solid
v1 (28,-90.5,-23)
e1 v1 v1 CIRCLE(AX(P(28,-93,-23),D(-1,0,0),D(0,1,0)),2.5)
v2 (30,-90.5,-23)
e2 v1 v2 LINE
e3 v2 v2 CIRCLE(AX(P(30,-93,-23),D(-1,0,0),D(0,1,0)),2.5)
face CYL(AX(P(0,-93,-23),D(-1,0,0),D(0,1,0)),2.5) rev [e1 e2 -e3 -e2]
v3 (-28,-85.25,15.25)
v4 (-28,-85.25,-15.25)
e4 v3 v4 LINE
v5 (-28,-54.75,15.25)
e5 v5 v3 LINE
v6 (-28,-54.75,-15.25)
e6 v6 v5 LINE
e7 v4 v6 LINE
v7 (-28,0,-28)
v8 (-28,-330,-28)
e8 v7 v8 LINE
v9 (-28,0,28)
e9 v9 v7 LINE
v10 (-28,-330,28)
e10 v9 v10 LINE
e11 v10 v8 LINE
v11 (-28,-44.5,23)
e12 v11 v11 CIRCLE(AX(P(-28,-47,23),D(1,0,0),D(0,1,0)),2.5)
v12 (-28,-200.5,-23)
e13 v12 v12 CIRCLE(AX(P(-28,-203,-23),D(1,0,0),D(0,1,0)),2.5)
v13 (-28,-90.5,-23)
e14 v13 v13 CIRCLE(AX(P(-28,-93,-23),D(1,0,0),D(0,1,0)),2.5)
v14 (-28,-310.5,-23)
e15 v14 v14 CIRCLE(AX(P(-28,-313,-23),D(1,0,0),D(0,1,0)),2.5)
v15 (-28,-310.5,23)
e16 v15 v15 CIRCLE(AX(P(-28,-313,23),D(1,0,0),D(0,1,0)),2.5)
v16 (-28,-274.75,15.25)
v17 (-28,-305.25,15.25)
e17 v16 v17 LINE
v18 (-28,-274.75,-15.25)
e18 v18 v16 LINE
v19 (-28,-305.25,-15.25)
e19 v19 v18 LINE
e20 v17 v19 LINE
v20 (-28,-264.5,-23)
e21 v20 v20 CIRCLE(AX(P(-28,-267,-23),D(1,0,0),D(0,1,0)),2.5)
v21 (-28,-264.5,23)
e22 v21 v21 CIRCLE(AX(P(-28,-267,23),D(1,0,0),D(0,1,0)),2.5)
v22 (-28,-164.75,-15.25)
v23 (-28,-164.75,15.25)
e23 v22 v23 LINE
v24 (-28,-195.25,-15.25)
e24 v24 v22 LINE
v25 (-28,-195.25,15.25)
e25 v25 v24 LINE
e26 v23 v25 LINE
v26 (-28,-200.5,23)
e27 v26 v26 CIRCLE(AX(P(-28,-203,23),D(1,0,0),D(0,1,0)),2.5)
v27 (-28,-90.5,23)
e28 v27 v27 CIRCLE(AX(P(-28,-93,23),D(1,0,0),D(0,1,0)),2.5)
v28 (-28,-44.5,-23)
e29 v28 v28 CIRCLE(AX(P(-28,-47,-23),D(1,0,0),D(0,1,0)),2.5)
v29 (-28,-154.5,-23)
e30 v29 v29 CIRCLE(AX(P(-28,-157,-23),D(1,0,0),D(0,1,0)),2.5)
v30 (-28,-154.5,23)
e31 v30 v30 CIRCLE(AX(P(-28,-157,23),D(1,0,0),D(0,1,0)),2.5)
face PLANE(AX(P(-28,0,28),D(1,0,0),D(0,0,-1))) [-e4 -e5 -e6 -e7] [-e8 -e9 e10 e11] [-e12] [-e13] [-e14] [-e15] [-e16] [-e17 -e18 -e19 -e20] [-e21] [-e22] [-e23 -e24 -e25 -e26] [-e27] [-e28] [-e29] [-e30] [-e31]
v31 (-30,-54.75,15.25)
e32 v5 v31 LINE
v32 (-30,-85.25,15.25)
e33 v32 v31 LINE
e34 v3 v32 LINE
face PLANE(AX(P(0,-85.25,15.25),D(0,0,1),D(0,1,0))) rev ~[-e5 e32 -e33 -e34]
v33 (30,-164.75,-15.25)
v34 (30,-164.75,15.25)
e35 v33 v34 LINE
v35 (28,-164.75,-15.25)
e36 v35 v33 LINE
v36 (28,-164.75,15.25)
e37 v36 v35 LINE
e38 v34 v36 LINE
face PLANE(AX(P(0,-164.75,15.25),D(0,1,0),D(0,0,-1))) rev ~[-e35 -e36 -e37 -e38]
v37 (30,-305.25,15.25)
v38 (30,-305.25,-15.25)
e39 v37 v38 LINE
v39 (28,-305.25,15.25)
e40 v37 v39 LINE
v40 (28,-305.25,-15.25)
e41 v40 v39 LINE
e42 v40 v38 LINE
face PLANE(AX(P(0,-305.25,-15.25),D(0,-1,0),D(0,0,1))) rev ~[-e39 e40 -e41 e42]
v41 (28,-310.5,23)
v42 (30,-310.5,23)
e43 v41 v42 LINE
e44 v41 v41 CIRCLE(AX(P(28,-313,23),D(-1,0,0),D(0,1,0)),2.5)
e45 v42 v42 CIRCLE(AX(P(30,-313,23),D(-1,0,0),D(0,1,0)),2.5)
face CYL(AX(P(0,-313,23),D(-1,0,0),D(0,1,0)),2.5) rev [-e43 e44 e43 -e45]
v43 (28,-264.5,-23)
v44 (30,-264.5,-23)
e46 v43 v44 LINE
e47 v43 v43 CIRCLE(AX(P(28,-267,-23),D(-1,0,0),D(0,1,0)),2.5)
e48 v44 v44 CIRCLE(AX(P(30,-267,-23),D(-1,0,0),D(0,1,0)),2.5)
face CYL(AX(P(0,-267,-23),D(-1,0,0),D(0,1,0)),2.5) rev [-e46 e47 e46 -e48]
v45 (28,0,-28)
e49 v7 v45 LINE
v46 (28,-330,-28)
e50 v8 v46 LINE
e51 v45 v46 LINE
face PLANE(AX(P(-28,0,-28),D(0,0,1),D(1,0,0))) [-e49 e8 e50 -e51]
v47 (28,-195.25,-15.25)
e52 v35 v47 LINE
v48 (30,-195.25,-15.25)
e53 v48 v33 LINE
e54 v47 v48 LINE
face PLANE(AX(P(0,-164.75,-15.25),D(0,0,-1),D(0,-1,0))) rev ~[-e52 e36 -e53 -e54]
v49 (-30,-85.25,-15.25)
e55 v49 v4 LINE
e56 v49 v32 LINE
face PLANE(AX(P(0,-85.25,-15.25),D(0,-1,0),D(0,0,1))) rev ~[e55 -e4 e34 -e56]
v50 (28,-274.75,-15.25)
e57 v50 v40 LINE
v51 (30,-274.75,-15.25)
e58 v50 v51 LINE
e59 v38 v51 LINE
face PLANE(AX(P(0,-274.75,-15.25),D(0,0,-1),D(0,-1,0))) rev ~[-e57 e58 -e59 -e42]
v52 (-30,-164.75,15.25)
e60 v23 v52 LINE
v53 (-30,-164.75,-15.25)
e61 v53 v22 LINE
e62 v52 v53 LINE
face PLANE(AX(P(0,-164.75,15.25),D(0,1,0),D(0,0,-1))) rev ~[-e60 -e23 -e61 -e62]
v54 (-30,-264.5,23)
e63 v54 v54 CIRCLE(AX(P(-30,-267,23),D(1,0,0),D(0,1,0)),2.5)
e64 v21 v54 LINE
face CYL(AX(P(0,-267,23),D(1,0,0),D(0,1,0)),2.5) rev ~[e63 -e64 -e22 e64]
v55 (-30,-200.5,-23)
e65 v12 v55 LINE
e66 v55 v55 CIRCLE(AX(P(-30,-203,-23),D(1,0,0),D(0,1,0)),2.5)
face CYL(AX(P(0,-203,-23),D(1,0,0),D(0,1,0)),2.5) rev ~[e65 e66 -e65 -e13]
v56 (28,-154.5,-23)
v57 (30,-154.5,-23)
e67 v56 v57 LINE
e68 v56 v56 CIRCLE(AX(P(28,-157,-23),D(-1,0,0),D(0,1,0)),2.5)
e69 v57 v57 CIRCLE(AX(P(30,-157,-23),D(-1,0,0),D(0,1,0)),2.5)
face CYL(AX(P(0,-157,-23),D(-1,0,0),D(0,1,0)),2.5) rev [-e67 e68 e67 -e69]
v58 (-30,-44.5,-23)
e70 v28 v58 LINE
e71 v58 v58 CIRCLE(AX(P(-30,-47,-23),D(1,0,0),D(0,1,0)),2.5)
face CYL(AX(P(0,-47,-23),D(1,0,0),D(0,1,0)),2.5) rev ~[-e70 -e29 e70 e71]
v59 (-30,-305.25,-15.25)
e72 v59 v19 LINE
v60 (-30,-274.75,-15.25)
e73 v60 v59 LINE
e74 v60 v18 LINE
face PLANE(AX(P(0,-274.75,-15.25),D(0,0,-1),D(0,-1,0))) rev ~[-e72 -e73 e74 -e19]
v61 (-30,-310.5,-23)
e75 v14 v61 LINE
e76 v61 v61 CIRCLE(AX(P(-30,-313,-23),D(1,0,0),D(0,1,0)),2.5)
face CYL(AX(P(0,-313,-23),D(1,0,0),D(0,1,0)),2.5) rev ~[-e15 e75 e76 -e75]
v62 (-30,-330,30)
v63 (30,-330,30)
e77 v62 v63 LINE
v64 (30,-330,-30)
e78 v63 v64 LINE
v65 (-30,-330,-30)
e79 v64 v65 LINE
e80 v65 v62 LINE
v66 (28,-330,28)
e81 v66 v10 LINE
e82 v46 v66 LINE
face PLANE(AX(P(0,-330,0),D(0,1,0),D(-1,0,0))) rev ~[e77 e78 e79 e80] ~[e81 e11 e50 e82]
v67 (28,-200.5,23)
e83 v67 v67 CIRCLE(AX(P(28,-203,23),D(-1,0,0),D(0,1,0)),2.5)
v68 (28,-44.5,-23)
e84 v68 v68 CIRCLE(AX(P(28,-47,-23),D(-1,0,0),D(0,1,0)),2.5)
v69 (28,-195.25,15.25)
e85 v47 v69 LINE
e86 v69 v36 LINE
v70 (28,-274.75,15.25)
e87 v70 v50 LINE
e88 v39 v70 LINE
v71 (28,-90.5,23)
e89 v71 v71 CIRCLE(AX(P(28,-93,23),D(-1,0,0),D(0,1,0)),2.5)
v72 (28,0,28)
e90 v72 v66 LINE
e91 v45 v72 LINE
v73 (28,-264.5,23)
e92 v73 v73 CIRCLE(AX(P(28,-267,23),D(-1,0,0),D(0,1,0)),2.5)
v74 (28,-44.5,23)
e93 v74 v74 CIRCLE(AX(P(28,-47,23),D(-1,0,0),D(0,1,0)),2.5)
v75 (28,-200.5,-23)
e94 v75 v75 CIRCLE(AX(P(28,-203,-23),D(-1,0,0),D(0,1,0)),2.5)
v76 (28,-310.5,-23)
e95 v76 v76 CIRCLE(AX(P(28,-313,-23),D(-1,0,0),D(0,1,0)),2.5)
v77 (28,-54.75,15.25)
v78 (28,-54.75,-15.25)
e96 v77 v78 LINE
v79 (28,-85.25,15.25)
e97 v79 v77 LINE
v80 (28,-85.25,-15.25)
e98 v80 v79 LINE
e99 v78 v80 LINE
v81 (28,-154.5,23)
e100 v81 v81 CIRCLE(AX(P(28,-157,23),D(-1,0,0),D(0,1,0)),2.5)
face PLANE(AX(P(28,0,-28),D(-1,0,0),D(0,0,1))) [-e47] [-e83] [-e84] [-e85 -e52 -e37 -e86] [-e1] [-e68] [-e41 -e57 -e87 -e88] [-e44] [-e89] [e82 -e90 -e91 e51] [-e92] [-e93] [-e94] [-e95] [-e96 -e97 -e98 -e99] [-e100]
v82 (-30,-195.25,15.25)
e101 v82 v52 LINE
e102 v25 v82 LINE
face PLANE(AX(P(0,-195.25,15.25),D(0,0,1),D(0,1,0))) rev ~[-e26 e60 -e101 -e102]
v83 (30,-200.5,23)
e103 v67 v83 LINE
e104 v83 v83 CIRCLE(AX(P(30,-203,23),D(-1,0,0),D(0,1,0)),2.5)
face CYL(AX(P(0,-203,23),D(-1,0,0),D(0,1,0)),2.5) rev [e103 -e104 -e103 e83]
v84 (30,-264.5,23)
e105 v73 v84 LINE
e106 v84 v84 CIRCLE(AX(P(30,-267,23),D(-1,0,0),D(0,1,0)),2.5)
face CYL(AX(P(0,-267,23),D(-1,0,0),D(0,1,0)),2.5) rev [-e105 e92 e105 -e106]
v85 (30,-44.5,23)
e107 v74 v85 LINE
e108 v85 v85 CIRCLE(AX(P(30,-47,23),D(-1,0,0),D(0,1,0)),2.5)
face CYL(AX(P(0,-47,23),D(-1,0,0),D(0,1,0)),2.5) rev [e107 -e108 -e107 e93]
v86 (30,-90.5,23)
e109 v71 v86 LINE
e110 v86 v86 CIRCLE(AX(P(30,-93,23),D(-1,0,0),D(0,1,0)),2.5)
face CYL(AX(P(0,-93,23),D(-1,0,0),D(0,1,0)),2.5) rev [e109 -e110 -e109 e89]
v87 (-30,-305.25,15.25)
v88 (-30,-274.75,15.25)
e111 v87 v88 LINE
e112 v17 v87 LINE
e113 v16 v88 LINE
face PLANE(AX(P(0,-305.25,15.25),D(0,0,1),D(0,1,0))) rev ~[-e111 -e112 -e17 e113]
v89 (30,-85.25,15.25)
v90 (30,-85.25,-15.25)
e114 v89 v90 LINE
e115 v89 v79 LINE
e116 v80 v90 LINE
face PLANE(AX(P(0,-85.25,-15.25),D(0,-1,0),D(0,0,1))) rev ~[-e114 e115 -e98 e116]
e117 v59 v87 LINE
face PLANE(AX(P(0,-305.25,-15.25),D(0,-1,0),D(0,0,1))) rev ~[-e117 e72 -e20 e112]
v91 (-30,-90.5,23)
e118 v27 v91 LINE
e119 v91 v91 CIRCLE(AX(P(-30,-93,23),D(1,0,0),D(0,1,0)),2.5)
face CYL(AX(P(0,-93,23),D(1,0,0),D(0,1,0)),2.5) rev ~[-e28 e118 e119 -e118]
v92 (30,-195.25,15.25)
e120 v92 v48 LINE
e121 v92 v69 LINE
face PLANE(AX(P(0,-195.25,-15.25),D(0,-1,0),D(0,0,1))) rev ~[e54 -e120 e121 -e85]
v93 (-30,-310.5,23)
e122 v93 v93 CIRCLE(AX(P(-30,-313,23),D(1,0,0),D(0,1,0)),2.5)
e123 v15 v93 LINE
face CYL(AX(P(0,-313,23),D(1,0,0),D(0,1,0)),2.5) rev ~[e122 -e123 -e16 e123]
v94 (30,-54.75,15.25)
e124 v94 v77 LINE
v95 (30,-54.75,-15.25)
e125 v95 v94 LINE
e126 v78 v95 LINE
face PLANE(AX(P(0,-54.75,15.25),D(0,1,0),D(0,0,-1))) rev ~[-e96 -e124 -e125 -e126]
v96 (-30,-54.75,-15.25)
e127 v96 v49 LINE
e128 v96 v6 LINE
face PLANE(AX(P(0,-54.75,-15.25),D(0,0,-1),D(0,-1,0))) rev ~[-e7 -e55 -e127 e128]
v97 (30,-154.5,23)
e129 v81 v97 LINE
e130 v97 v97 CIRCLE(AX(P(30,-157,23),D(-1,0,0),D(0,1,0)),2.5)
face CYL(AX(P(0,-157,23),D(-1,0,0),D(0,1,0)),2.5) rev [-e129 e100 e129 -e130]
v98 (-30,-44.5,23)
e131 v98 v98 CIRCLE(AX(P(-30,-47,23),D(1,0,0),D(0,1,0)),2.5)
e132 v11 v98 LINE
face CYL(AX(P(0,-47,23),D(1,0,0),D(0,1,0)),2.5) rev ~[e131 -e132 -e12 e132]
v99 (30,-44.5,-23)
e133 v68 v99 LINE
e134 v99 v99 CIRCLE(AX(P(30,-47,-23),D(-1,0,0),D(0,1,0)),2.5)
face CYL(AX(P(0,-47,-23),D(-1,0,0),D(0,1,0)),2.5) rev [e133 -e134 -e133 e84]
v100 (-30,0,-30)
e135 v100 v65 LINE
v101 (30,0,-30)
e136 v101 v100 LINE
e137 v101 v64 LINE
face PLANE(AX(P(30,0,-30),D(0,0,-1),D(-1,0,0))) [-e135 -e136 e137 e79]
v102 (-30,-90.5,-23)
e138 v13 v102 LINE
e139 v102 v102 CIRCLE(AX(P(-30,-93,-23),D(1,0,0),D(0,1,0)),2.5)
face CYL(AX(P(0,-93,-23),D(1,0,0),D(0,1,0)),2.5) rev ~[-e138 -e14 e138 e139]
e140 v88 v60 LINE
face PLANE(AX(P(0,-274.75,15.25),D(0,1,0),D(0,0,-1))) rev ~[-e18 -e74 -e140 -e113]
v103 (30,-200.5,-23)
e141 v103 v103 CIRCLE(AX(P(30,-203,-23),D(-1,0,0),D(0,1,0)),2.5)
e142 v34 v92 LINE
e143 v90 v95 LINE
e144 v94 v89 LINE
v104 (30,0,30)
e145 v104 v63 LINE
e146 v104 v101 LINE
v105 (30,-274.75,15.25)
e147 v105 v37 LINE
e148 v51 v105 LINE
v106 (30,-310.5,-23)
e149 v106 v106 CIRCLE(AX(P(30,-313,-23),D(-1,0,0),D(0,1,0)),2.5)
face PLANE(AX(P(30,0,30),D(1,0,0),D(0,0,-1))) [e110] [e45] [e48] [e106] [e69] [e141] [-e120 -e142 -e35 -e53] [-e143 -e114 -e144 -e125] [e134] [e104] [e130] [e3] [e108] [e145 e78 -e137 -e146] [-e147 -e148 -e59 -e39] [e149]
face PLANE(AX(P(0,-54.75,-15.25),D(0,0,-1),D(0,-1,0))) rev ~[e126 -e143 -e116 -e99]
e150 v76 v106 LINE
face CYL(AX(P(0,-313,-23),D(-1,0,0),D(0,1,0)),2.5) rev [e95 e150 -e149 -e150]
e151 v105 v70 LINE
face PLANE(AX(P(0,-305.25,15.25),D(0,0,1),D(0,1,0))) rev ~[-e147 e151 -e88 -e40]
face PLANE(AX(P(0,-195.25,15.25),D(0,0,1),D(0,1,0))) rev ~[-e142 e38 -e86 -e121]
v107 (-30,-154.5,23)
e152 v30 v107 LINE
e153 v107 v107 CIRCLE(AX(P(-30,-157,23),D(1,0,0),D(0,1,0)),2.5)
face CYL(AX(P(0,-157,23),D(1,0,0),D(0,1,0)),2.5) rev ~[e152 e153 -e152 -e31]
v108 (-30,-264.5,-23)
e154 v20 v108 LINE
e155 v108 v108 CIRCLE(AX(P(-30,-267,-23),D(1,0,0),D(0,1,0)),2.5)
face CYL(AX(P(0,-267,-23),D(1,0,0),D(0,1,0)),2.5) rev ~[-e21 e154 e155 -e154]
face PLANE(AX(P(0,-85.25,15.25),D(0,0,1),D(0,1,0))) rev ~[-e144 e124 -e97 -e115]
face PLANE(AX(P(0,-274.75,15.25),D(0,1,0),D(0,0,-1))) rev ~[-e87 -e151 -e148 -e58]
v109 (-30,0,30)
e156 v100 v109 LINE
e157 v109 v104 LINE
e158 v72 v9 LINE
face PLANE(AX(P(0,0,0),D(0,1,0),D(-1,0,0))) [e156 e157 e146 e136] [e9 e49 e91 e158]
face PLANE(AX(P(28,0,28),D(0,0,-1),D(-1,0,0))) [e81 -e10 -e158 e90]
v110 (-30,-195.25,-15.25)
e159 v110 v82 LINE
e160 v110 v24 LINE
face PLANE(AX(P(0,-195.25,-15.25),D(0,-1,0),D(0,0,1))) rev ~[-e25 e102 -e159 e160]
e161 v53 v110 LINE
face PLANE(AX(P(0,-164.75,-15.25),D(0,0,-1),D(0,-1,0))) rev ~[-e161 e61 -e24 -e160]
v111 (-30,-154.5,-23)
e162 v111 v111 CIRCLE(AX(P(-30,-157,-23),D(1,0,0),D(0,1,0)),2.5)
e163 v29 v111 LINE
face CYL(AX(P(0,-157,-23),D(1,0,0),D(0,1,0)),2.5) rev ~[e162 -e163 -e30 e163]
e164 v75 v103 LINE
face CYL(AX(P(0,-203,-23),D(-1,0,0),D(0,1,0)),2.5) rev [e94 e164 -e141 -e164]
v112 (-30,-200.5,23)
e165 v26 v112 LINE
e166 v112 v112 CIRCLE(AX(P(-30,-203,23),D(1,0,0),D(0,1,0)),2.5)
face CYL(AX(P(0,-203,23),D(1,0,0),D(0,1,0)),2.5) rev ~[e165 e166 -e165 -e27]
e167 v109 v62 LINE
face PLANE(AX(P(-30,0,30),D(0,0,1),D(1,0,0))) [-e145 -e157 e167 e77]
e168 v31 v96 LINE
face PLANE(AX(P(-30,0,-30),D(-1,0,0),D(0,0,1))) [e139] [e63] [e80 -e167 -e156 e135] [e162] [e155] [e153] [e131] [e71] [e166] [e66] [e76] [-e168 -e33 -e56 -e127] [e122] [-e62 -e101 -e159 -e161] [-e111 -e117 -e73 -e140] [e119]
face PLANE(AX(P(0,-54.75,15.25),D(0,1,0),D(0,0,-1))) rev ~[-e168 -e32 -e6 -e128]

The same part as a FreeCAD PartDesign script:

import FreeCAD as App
import Part
import Sketcher
from FreeCAD import Vector
Q = App.Units.Quantity

doc = App.newDocument("Part")
body = doc.addObject("PartDesign::Body", "Body")

sketch1 = body.newObject("Sketcher::SketchObject", "Sketch")
sketch1.AttachmentSupport = (doc.getObject("XZ_Plane"), [""])
sketch1.MapMode = "FlatFace"
sketch1.addGeometry([
    Part.LineSegment(Vector(-30, -30, 0), Vector(-30, 30, 0)),
    Part.LineSegment(Vector(-30, 30, 0), Vector(30, 30, 0)),
    Part.LineSegment(Vector(30, 30, 0), Vector(30, -30, 0)),
    Part.LineSegment(Vector(30, -30, 0), Vector(-30, -30, 0)),
    Part.LineSegment(Vector(28, -28, 0), Vector(28, 28, 0)),
    Part.LineSegment(Vector(28, 28, 0), Vector(-28, 28, 0)),
    Part.LineSegment(Vector(-28, 28, 0), Vector(-28, -28, 0)),
    Part.LineSegment(Vector(-28, -28, 0), Vector(28, -28, 0)),
], False)
sketch1.addConstraint([
    Sketcher.Constraint("Coincident", 0, 2, 1, 1),
    Sketcher.Constraint("Coincident", 1, 2, 2, 1),
    Sketcher.Constraint("Coincident", 2, 2, 3, 1),
    Sketcher.Constraint("Coincident", 3, 2, 0, 1),
    Sketcher.Constraint("Coincident", 4, 2, 5, 1),
    Sketcher.Constraint("Coincident", 5, 2, 6, 1),
    Sketcher.Constraint("Coincident", 6, 2, 7, 1),
    Sketcher.Constraint("Coincident", 7, 2, 4, 1),
    Sketcher.Constraint("Vertical", 0),
    Sketcher.Constraint("Horizontal", 1),
    Sketcher.Constraint("Vertical", 2),
    Sketcher.Constraint("Horizontal", 3),
    Sketcher.Constraint("Vertical", 4),
    Sketcher.Constraint("Horizontal", 5),
    Sketcher.Constraint("Vertical", 6),
    Sketcher.Constraint("Horizontal", 7),
    Sketcher.Constraint("Symmetric", 0, 2, 2, 2, -1, 1),
    Sketcher.Constraint("Symmetric", 4, 2, 6, 2, -1, 1),
    Sketcher.Constraint("Equal", 3, 0),
    Sketcher.Constraint("Equal", 7, 4),
    Sketcher.Constraint("DistanceX", 1, 1, 1, 2, Q("60 mm")),
    Sketcher.Constraint("DistanceX", 4, 2, 1, 2, Q("2 mm")),
])
pad1 = body.newObject("PartDesign::Pad", "Pad")
pad1.Profile = sketch1
pad1.Length = 330

sketch2 = body.newObject("Sketcher::SketchObject", "Sketch001")
sketch2.AttachmentSupport = (doc.getObject("YZ_Plane"), [""])
sketch2.MapMode = "FlatFace"
sketch2.addGeometry([
    Part.LineSegment(Vector(-85.25, 15.25, 0), Vector(-85.25, -15.25, 0)),
    Part.LineSegment(Vector(-85.25, -15.25, 0), Vector(-54.75, -15.25, 0)),
    Part.LineSegment(Vector(-54.75, -15.25, 0), Vector(-54.75, 15.25, 0)),
    Part.LineSegment(Vector(-54.75, 15.25, 0), Vector(-85.25, 15.25, 0)),
    Part.Circle(Vector(-93, 23, 0), Vector(0, 0, 1), 2.5),
    Part.Circle(Vector(-47, 23, 0), Vector(0, 0, 1), 2.5),
    Part.Circle(Vector(-47, -23, 0), Vector(0, 0, 1), 2.5),
    Part.Circle(Vector(-93, -23, 0), Vector(0, 0, 1), 2.5),
], False)
sketch2.addConstraint([
    Sketcher.Constraint("Coincident", 0, 2, 1, 1),
    Sketcher.Constraint("Coincident", 1, 2, 2, 1),
    Sketcher.Constraint("Coincident", 2, 2, 3, 1),
    Sketcher.Constraint("Coincident", 3, 2, 0, 1),
    Sketcher.Constraint("Vertical", 0),
    Sketcher.Constraint("Horizontal", 1),
    Sketcher.Constraint("Vertical", 2),
    Sketcher.Constraint("Horizontal", 3),
    Sketcher.Constraint("Equal", 4, 5),
    Sketcher.Constraint("Equal", 5, 6),
    Sketcher.Constraint("Equal", 6, 7),
    Sketcher.Constraint("Symmetric", 5, 3, 6, 3, -1),
    Sketcher.Constraint("Symmetric", 4, 3, 7, 3, -1),
    Sketcher.Constraint("Horizontal", 4, 3, 5, 3),
    Sketcher.Constraint("Equal", 3, 0),
    Sketcher.Constraint("Diameter", 4, Q("5 mm")),
    Sketcher.Constraint("DistanceX", 1, 1, 1, 2, Q("30.5 mm")),
    Sketcher.Constraint("DistanceX", 4, 3, 5, 3, Q("46 mm")),
    Sketcher.Constraint("DistanceY", 6, 3, 5, 3, Q("46 mm")),
    Sketcher.Constraint("DistanceX", 4, 3, -1, 1, Q("93 mm")),
    Sketcher.Constraint("DistanceX", 0, 2, -1, 1, Q("85.25 mm")),
    Sketcher.Constraint("DistanceY", 0, 2, -1, 1, Q("15.25 mm")),
])
pocket1 = body.newObject("PartDesign::Pocket", "Pocket")
pocket1.Profile = sketch2
pocket1.Type = "ThroughAll"
pocket1.Midplane = True
doc.recompute()

linearpattern = body.newObject("PartDesign::LinearPattern", "LinearPattern")
linearpattern.Originals = [pocket1]
linearpattern.Direction = (doc.getObject("Y_Axis"), [""])
linearpattern.Mode = "offset"
linearpattern.Offset = 110
linearpattern.Occurrences = 3
linearpattern.Reversed = True
body.Tip = linearpattern

doc.recompute()
